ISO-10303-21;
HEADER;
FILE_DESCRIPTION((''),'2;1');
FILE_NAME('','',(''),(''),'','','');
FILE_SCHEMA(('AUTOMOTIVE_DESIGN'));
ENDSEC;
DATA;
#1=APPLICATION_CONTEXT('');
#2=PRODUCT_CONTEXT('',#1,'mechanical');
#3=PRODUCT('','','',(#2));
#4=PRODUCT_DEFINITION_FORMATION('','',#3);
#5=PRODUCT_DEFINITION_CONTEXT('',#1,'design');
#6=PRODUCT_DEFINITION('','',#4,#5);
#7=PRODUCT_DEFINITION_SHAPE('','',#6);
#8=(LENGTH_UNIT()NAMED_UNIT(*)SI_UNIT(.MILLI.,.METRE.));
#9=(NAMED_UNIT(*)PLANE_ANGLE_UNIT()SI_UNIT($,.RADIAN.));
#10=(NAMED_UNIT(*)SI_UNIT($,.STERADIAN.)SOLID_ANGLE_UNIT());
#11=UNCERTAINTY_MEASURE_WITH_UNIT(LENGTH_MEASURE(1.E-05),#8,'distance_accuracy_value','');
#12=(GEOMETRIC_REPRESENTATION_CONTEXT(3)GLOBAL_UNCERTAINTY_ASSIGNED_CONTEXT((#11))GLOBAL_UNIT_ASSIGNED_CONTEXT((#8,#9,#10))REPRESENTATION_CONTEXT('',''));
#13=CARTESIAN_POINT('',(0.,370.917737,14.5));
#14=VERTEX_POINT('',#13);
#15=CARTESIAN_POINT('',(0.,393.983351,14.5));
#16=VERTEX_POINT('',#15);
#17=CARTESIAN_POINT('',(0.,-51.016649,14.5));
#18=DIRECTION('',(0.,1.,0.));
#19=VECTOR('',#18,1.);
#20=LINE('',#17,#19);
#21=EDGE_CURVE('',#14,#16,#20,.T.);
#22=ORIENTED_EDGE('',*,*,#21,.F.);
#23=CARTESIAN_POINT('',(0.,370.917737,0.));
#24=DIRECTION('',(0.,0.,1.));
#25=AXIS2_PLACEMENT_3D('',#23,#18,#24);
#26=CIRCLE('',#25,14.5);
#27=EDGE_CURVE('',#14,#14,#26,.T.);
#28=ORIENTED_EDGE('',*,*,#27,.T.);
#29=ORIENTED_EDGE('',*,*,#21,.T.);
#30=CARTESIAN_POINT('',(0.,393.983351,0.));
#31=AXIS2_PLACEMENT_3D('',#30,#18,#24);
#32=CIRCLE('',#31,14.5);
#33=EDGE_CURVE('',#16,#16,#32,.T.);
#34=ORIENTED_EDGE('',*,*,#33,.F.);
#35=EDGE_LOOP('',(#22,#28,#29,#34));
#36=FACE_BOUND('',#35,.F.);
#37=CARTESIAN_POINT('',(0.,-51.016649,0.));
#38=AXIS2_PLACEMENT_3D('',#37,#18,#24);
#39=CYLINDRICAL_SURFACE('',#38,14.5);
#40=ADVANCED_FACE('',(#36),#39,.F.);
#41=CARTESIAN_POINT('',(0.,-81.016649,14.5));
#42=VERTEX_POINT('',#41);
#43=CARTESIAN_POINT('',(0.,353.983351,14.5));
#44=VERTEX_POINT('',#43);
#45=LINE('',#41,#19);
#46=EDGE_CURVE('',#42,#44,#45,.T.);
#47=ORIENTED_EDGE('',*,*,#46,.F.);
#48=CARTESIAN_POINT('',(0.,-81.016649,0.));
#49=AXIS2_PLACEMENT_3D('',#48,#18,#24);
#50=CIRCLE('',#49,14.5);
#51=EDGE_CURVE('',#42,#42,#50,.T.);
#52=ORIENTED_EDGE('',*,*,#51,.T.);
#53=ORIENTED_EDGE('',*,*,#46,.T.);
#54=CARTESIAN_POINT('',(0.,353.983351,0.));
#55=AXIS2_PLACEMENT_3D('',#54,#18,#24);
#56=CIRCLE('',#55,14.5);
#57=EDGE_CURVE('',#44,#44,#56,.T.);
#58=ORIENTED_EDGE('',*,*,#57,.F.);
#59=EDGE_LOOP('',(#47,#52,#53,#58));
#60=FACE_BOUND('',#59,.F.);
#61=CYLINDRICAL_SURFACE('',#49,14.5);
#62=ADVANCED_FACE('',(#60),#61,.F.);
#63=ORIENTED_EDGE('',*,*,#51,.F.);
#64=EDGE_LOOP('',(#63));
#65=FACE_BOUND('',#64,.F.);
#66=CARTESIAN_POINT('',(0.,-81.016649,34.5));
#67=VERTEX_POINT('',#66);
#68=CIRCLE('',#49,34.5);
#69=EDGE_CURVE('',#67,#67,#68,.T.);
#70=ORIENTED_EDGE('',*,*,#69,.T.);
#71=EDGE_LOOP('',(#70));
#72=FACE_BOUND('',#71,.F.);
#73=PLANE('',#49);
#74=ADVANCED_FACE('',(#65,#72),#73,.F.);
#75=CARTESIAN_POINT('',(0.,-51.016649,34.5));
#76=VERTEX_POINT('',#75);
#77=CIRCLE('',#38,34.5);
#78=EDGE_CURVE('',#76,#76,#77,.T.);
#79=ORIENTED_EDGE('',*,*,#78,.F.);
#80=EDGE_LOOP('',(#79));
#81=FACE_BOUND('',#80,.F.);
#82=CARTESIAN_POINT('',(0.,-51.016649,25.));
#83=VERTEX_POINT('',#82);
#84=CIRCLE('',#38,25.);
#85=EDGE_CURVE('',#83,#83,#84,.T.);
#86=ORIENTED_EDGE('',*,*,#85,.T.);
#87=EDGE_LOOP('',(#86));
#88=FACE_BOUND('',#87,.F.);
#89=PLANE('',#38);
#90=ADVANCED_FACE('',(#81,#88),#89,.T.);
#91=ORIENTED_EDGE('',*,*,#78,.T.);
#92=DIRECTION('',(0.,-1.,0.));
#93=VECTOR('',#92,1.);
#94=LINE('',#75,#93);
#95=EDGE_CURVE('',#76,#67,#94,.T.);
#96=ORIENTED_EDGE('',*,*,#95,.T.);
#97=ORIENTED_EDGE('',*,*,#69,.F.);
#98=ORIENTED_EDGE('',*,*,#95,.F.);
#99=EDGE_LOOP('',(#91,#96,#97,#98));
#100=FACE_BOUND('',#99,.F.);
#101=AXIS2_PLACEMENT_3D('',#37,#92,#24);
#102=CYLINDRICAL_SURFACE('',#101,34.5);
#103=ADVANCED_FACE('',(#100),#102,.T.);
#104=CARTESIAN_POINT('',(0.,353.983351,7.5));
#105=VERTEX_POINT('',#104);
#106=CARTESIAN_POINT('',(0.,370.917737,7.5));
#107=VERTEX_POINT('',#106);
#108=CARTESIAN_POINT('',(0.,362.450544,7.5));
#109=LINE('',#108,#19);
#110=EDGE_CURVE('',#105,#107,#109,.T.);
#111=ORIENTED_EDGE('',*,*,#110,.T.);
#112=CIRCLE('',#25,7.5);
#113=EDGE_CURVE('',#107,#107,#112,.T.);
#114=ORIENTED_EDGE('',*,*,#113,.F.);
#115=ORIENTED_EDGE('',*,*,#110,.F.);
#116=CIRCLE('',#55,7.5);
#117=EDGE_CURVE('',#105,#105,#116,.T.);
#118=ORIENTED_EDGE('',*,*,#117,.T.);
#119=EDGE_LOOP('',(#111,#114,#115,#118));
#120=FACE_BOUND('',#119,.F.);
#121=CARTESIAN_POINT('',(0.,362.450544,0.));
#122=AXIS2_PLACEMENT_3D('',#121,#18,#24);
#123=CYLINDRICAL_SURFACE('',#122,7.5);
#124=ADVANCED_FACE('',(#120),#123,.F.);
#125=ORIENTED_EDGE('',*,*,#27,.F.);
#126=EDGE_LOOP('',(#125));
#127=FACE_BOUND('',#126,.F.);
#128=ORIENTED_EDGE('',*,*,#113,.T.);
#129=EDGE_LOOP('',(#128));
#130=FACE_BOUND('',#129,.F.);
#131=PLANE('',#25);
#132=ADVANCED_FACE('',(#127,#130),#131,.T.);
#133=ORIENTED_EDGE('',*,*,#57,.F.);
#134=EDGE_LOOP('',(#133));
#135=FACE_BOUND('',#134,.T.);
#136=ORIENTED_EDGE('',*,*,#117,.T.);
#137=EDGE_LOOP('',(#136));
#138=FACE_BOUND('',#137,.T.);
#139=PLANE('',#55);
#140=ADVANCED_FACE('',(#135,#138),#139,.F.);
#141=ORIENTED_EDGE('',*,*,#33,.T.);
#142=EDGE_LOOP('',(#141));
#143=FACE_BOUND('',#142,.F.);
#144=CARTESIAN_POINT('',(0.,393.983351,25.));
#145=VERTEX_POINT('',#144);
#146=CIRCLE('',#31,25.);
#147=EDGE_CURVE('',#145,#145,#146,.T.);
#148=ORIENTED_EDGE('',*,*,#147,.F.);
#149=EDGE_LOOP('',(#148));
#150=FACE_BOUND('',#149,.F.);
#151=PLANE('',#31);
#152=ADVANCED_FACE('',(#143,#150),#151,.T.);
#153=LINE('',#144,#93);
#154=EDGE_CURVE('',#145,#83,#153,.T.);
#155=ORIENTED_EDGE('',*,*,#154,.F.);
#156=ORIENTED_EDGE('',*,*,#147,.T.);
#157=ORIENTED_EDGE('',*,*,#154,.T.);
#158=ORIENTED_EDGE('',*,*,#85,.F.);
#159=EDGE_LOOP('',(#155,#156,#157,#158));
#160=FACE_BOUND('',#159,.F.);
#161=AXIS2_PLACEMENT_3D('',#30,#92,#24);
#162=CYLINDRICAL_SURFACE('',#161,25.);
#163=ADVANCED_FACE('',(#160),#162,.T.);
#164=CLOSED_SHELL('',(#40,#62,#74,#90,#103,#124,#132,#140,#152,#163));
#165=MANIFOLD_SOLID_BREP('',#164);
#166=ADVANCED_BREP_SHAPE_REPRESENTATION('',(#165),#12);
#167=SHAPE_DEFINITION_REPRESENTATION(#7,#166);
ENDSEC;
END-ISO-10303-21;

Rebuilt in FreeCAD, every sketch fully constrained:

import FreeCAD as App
import Part
import Sketcher
from FreeCAD import Vector
Q = App.Units.Quantity


def add_polygon(sketch, points):
    """Adds a closed chain of lines whose ends are joined by coincident constraints."""
    first, n = sketch.GeometryCount, len(points)
    for a, b in zip(points, points[1:] + points[:1]):
        sketch.addGeometry(Part.LineSegment(App.Vector(*a, 0), App.Vector(*b, 0)), False)
    for i in range(n):
        sketch.addConstraint(Sketcher.Constraint("Coincident", first + i, 2, first + (i + 1) % n, 1))

doc = App.newDocument("Part")
body = doc.addObject("PartDesign::Body", "Body")

# Sketch on YZ plane
sketch1 = body.newObject("Sketcher::SketchObject", "Sketch")
sketch1.AttachmentSupport = (doc.getObject("YZ_Plane"), [""])
sketch1.MapMode = "FlatFace"
add_polygon(sketch1, [(394, 25), (-51, 25), (-51, 34), (-81, 34), (-81, 14), (354, 14), (354, 8), (371, 8), (371, 14), (394, 14)])  # lines 0-9
sketch1.addConstraint(Sketcher.Constraint("Horizontal", 0))
sketch1.addConstraint(Sketcher.Constraint("Vertical", 1))
sketch1.addConstraint(Sketcher.Constraint("Horizontal", 2))
sketch1.addConstraint(Sketcher.Constraint("Vertical", 3))
sketch1.addConstraint(Sketcher.Constraint("Horizontal", 4))
sketch1.addConstraint(Sketcher.Constraint("Vertical", 5))
sketch1.addConstraint(Sketcher.Constraint("Horizontal", 6))
sketch1.addConstraint(Sketcher.Constraint("Vertical", 7))
sketch1.addConstraint(Sketcher.Constraint("Horizontal", 8))
sketch1.addConstraint(Sketcher.Constraint("Vertical", 9))
sketch1.addConstraint(Sketcher.Constraint("Horizontal", 4, 2, 7, 2))
sketch1.addConstraint(Sketcher.Constraint("DistanceX", 0, 2, 0, 1, Q("445 mm")))
sketch1.addConstraint(Sketcher.Constraint("DistanceX", 2, 2, 2, 1, Q("30 mm")))
sketch1.addConstraint(Sketcher.Constraint("DistanceX", 4, 1, 4, 2, Q("435 mm")))
sketch1.addConstraint(Sketcher.Constraint("DistanceY", 3, 2, 3, 1, Q("20 mm")))
sketch1.addConstraint(Sketcher.Constraint("DistanceY", 5, 2, 5, 1, Q("7 mm")))
sketch1.addConstraint(Sketcher.Constraint("DistanceY", 1, 1, 1, 2, Q("9.5 mm")))
sketch1.addConstraint(Sketcher.Constraint("DistanceY", -1, 1, 0, 2, Q("25 mm")))
sketch1.addConstraint(Sketcher.Constraint("DistanceX", 6, 1, 6, 2, Q("16.934386 mm")))
sketch1.addConstraint(Sketcher.Constraint("DistanceX", 0, 2, -1, 1, Q("51.016649 mm")))
revolution = body.newObject("PartDesign::Revolution", "Revolution")
revolution.Profile = sketch1
revolution.ReferenceAxis = (sketch1, ["H_Axis"])
revolution.Angle = 360

doc.recompute()
